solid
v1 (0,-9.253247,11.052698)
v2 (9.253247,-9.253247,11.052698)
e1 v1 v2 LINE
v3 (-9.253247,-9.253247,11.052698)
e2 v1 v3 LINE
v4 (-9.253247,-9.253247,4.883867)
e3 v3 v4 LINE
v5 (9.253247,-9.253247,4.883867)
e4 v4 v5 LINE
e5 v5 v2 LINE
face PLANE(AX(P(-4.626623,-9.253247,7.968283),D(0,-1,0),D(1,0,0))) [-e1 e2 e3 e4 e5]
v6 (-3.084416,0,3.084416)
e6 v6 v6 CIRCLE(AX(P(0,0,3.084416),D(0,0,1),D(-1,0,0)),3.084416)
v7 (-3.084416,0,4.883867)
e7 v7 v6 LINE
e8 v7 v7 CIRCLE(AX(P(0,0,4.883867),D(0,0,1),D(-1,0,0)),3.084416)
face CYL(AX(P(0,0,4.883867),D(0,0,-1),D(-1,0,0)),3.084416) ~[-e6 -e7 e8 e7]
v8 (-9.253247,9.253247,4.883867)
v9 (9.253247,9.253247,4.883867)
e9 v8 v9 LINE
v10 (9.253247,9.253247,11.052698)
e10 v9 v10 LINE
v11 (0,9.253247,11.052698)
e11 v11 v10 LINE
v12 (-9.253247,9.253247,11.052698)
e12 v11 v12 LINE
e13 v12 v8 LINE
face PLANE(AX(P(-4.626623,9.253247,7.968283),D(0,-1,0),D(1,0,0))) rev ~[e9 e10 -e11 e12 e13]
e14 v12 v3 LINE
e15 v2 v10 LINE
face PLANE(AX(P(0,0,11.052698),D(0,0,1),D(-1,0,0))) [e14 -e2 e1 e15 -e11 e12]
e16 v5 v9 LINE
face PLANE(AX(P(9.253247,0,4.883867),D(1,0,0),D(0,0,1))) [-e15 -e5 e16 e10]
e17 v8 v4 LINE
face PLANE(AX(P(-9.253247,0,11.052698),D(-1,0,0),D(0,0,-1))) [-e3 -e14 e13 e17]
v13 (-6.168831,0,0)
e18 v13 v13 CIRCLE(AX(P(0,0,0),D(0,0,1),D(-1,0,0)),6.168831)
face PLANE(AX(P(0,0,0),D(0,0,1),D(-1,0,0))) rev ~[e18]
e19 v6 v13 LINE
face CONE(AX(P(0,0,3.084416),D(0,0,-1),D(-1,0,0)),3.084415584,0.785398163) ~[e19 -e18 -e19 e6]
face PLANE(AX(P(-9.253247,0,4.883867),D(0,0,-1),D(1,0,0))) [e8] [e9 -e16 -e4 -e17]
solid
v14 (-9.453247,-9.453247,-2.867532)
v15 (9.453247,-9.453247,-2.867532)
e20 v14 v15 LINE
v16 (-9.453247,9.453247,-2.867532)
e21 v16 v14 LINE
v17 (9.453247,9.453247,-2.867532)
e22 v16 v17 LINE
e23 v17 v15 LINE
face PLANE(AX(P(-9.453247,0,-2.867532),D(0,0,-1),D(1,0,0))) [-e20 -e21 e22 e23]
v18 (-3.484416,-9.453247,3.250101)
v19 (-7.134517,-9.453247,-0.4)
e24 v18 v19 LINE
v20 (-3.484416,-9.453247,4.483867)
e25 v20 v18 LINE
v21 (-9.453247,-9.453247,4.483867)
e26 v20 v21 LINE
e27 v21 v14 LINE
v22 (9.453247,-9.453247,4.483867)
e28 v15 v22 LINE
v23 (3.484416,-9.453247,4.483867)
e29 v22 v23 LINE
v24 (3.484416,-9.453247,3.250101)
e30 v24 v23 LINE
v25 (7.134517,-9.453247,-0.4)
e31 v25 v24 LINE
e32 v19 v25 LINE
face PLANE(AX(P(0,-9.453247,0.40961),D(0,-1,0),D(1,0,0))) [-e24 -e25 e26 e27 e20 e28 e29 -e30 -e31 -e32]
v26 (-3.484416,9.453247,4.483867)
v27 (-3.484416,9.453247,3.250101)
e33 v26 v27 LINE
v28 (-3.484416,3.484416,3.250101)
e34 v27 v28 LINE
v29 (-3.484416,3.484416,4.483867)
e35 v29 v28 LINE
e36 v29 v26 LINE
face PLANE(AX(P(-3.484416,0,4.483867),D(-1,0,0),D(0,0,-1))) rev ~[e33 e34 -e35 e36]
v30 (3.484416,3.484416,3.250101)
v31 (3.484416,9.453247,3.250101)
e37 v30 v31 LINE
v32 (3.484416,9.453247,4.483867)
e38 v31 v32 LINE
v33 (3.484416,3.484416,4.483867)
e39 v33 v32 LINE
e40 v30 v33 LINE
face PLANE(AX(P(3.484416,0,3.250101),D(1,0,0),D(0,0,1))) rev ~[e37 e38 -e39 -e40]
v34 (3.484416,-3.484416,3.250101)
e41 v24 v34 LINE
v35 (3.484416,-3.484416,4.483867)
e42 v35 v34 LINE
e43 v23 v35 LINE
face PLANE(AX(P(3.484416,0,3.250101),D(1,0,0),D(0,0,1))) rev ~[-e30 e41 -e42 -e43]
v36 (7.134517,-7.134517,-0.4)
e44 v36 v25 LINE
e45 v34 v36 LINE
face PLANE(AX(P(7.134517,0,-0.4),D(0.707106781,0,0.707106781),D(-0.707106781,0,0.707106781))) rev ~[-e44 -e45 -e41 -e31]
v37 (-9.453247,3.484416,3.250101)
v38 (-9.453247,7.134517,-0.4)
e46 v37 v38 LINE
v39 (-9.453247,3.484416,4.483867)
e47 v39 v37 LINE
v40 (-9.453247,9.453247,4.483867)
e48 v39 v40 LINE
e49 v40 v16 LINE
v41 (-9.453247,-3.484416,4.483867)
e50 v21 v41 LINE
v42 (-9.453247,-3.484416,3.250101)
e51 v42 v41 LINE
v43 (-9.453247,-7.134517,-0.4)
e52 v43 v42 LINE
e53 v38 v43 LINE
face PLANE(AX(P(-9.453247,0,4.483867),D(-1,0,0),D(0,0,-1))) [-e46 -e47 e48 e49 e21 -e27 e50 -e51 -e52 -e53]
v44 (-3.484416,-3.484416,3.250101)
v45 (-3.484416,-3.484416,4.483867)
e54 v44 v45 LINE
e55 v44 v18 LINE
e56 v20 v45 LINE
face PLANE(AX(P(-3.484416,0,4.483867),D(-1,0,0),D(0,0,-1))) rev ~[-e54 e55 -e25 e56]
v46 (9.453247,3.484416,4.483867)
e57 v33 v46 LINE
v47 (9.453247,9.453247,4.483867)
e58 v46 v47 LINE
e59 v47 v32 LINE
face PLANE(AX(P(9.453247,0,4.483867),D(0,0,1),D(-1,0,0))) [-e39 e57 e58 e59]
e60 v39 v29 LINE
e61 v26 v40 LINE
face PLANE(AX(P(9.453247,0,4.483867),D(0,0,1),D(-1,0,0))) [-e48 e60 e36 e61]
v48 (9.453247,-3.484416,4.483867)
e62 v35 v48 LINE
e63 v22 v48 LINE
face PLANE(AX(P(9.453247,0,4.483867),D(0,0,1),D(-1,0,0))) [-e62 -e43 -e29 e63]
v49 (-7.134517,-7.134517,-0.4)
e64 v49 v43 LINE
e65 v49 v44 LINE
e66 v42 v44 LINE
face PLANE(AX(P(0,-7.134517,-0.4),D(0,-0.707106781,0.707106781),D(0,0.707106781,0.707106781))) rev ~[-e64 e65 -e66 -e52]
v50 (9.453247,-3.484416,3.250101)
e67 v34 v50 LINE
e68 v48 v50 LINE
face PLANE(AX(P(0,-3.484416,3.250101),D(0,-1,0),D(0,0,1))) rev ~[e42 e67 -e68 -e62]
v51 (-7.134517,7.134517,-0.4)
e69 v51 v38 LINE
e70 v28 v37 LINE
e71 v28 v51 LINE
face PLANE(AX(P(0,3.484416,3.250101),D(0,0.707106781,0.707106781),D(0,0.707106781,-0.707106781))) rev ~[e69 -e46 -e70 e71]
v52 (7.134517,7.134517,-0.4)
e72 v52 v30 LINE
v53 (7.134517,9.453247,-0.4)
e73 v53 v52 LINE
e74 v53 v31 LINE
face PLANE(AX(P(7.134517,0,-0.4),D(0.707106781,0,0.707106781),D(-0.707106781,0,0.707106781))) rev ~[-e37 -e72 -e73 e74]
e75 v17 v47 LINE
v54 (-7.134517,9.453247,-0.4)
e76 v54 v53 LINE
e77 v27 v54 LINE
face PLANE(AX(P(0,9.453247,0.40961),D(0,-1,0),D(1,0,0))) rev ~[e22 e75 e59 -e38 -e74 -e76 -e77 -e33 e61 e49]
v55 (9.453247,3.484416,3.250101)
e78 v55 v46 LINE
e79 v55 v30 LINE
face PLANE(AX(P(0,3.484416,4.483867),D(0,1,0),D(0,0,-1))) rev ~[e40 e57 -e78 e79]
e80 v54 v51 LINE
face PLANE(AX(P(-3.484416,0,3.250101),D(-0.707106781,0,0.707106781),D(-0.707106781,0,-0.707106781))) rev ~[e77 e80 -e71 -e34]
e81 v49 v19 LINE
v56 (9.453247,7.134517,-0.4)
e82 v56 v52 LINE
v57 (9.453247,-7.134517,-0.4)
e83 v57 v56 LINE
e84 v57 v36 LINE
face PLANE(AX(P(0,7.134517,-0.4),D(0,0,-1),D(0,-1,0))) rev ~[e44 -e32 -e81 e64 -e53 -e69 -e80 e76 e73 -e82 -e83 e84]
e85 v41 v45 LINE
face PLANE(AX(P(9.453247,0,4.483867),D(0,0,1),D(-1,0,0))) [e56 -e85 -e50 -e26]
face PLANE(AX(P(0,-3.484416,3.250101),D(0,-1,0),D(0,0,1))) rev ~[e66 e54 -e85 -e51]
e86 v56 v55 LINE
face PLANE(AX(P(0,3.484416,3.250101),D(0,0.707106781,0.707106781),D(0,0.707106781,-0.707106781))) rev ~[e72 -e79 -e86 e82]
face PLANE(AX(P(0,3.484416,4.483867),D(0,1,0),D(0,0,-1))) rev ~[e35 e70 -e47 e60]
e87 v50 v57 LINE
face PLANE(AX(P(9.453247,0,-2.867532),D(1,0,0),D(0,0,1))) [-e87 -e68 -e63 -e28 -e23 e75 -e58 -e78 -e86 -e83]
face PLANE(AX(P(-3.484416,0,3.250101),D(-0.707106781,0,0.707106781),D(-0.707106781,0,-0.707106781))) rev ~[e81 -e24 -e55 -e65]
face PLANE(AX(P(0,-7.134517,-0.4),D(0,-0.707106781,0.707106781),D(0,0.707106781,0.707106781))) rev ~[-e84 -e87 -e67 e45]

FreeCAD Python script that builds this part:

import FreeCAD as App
import Part
import Sketcher
from FreeCAD import Vector
Q = App.Units.Quantity

doc = App.newDocument("Part")
body = doc.addObject("PartDesign::Body", "Body")

# Sketch on XZ plane
sketch1 = body.newObject("Sketcher::SketchObject", "Sketch")
sketch1.AttachmentSupport = (doc.getObject("XZ_Plane"), [""])
sketch1.MapMode = "FlatFace"
sketch1.addGeometry(Part.LineSegment(Vector(0, 11, 0), Vector(-9, 11, 0)), False)
sketch1.addGeometry(Part.LineSegment(Vector(-9, 11, 0), Vector(-9, 5, 0)), False)
sketch1.addGeometry(Part.LineSegment(Vector(-9, 5, 0), Vector(9, 5, 0)), False)
sketch1.addGeometry(Part.LineSegment(Vector(9, 5, 0), Vector(9, 11, 0)), False)
sketch1.addGeometry(Part.LineSegment(Vector(9, 11, 0), Vector(0, 11, 0)), False)
sketch1.addConstraint(Sketcher.Constraint("Coincident", 0, 2, 1, 1))
sketch1.addConstraint(Sketcher.Constraint("Coincident", 1, 2, 2, 1))
sketch1.addConstraint(Sketcher.Constraint("Coincident", 2, 2, 3, 1))
sketch1.addConstraint(Sketcher.Constraint("Coincident", 3, 2, 4, 1))
sketch1.addConstraint(Sketcher.Constraint("Coincident", 4, 2, 0, 1))
sketch1.addConstraint(Sketcher.Constraint("Horizontal", 0))
sketch1.addConstraint(Sketcher.Constraint("Vertical", 1))
sketch1.addConstraint(Sketcher.Constraint("Horizontal", 2))
sketch1.addConstraint(Sketcher.Constraint("Vertical", 3))
sketch1.addConstraint(Sketcher.Constraint("Horizontal", 4))
sketch1.addConstraint(Sketcher.Constraint("PointOnObject", 4, 2, -2))
sketch1.addConstraint(Sketcher.Constraint("Equal", 0, 4))
sketch1.addConstraint(Sketcher.Constraint("DistanceY", 1, 2, 1, 1, Q("6.168831 mm")))
sketch1.addConstraint(Sketcher.Constraint("DistanceY", -1, 1, 0, 2, Q("11.052698 mm")))
sketch1.addConstraint(Sketcher.Constraint("DistanceX", 0, 2, 0, 1, Q("9.253247 mm")))
pad1 = body.newObject("PartDesign::Pad", "Pad")
pad1.Profile = sketch1
pad1.Length = 18.506494
pad1.Midplane = True

# Sketch on XZ plane
sketch2 = body.newObject("Sketcher::SketchObject", "Sketch001")
sketch2.AttachmentSupport = (doc.getObject("XZ_Plane"), [""])
sketch2.MapMode = "FlatFace"
sketch2.addGeometry(Part.LineSegment(Vector(0, 0, 0), Vector(0, 4.9, 0)), False)
sketch2.addGeometry(Part.LineSegment(Vector(0, 4.9, 0), Vector(-3.1, 4.9, 0)), False)
sketch2.addGeometry(Part.LineSegment(Vector(-3.1, 4.9, 0), Vector(-3.1, 3.1, 0)), False)
sketch2.addGeometry(Part.LineSegment(Vector(-3.1, 3.1, 0), Vector(-6.2, 0, 0)), False)
sketch2.addGeometry(Part.LineSegment(Vector(-6.2, 0, 0), Vector(0, 0, 0)), False)
sketch2.addConstraint(Sketcher.Constraint("Coincident", 0, 2, 1, 1))
sketch2.addConstraint(Sketcher.Constraint("Coincident", 1, 2, 2, 1))
sketch2.addConstraint(Sketcher.Constraint("Coincident", 2, 2, 3, 1))
sketch2.addConstraint(Sketcher.Constraint("Coincident", 3, 2, 4, 1))
sketch2.addConstraint(Sketcher.Constraint("Coincident", 4, 2, 0, 1))
sketch2.addConstraint(Sketcher.Constraint("Vertical", 0))
sketch2.addConstraint(Sketcher.Constraint("Horizontal", 1))
sketch2.addConstraint(Sketcher.Constraint("Vertical", 2))
sketch2.addConstraint(Sketcher.Constraint("Horizontal", 4))
sketch2.addConstraint(Sketcher.Constraint("Coincident", 4, 2, -1, 1))
sketch2.addConstraint(Sketcher.Constraint("Angle", 3, Q("-135 deg")))
sketch2.addConstraint(Sketcher.Constraint("DistanceX", 4, 1, 4, 2, Q("6.168831 mm")))
sketch2.addConstraint(Sketcher.Constraint("DistanceY", 2, 2, 2, 1, Q("1.799452 mm")))
sketch2.addConstraint(Sketcher.Constraint("DistanceX", 1, 2, 1, 1, Q("3.084416 mm")))
revolution = body.newObject("PartDesign::Revolution", "Revolution")
revolution.Profile = sketch2
revolution.ReferenceAxis = (sketch2, ["V_Axis"])
revolution.Angle = 360
body2 = doc.addObject("PartDesign::Body", "Body001")

# Sketch on XZ plane
sketch3 = body2.newObject("Sketcher::SketchObject", "Sketch002")
sketch3.AttachmentSupport = (doc.getObject("XZ_Plane001"), [""])
sketch3.MapMode = "FlatFace"
sketch3.addGeometry(Part.LineSegment(Vector(-9, 4, 0), Vector(-9, -3, 0)), False)
sketch3.addGeometry(Part.LineSegment(Vector(-9, -3, 0), Vector(9, -3, 0)), False)
sketch3.addGeometry(Part.LineSegment(Vector(9, -3, 0), Vector(9, 4, 0)), False)
sketch3.addGeometry(Part.LineSegment(Vector(9, 4, 0), Vector(-9, 4, 0)), False)
sketch3.addConstraint(Sketcher.Constraint("Coincident", 0, 2, 1, 1))
sketch3.addConstraint(Sketcher.Constraint("Coincident", 1, 2, 2, 1))
sketch3.addConstraint(Sketcher.Constraint("Coincident", 2, 2, 3, 1))
sketch3.addConstraint(Sketcher.Constraint("Coincident", 3, 2, 0, 1))
sketch3.addConstraint(Sketcher.Constraint("Vertical", 0))
sketch3.addConstraint(Sketcher.Constraint("Horizontal", 1))
sketch3.addConstraint(Sketcher.Constraint("Vertical", 2))
sketch3.addConstraint(Sketcher.Constraint("Horizontal", 3))
sketch3.addConstraint(Sketcher.Constraint("DistanceY", 0, 2, 0, 1, Q("7.3514 mm")))
sketch3.addConstraint(Sketcher.Constraint("DistanceX", 1, 1, 1, 2, Q("18.906494 mm")))
sketch3.addConstraint(Sketcher.Constraint("DistanceX", 0, 2, -1, 1, Q("9.453247 mm")))
sketch3.addConstraint(Sketcher.Constraint("DistanceY", 0, 2, -1, 1, Q("2.867532 mm")))
pad2 = body2.newObject("PartDesign::Pad", "Pad001")
pad2.Profile = sketch3
pad2.Length = 18.906494
pad2.Midplane = True
body3 = doc.addObject("PartDesign::Body", "Body002")

# Sketch on XZ plane
sketch4 = body3.newObject("Sketcher::SketchObject", "Sketch003")
sketch4.AttachmentSupport = (doc.getObject("XZ_Plane002"), [""])
sketch4.MapMode = "FlatFace"
sketch4.addGeometry(Part.LineSegment(Vector(-3.5, 4.5, 0), Vector(-3.5, 3.3, 0)), False)
sketch4.addGeometry(Part.LineSegment(Vector(-3.5, 3.3, 0), Vector(-7.1, -0.4, 0)), False)
sketch4.addGeometry(Part.LineSegment(Vector(-7.1, -0.4, 0), Vector(7.1, -0.4, 0)), False)
sketch4.addGeometry(Part.LineSegment(Vector(7.1, -0.4, 0), Vector(3.5, 3.3, 0)), False)
sketch4.addGeometry(Part.LineSegment(Vector(3.5, 3.3, 0), Vector(3.5, 4.5, 0)), False)
sketch4.addGeometry(Part.LineSegment(Vector(3.5, 4.5, 0), Vector(-3.5, 4.5, 0)), False)
sketch4.addConstraint(Sketcher.Constraint("Coincident", 0, 2, 1, 1))
sketch4.addConstraint(Sketcher.Constraint("Coincident", 1, 2, 2, 1))
sketch4.addConstraint(Sketcher.Constraint("Coincident", 2, 2, 3, 1))
sketch4.addConstraint(Sketcher.Constraint("Coincident", 3, 2, 4, 1))
sketch4.addConstraint(Sketcher.Constraint("Coincident", 4, 2, 5, 1))
sketch4.addConstraint(Sketcher.Constraint("Coincident", 5, 2, 0, 1))
sketch4.addConstraint(Sketcher.Constraint("Vertical", 0))
sketch4.addConstraint(Sketcher.Constraint("Horizontal", 2))
sketch4.addConstraint(Sketcher.Constraint("Vertical", 4))
sketch4.addConstraint(Sketcher.Constraint("Horizontal", 5))
sketch4.addConstraint(Sketcher.Constraint("Symmetric", 0, 2, 3, 2, -2))
sketch4.addConstraint(Sketcher.Constraint("Perpendicular", 1, 3))
sketch4.addConstraint(Sketcher.Constraint("Equal", 1, 3))
sketch4.addConstraint(Sketcher.Constraint("DistanceY", 1, 2, -1, 1, Q("0.4 mm")))
sketch4.addConstraint(Sketcher.Constraint("DistanceX", 5, 2, 5, 1, Q("6.968831 mm")))
sketch4.addConstraint(Sketcher.Constraint("DistanceY", -1, 1, 0, 2, Q("3.250101 mm")))
sketch4.addConstraint(Sketcher.Constraint("DistanceY", 0, 2, 0, 1, Q("1.233766 mm")))
pad3 = body3.newObject("PartDesign::Pad", "Pad002")
pad3.Profile = sketch4
pad3.Length = 24.675325
pad3.Midplane = True
doc.recompute()

body4 = doc.addObject("PartDesign::Body", "Body003")
body4.BaseFeature = body3
boolean = body2.newObject("PartDesign::Boolean", "Boolean")
boolean.Type = "Cut"
boolean.addObjects([body4])
doc.recompute()
body5 = doc.addObject("PartDesign::Body", "Body004")
doc.recompute()

body3.Placement = App.Placement(Vector(0, 0, 0), App.Rotation(Vector(0, 0, -1), 90))
boolean2 = body5.newObject("PartDesign::Boolean", "Boolean001")
boolean2.Type = "Fuse"
boolean2.addObjects([body3])
doc.recompute()

boolean3 = body2.newObject("PartDesign::Boolean", "Boolean002")
boolean3.Type = "Cut"
boolean3.addObjects([body5])

doc.recompute()
